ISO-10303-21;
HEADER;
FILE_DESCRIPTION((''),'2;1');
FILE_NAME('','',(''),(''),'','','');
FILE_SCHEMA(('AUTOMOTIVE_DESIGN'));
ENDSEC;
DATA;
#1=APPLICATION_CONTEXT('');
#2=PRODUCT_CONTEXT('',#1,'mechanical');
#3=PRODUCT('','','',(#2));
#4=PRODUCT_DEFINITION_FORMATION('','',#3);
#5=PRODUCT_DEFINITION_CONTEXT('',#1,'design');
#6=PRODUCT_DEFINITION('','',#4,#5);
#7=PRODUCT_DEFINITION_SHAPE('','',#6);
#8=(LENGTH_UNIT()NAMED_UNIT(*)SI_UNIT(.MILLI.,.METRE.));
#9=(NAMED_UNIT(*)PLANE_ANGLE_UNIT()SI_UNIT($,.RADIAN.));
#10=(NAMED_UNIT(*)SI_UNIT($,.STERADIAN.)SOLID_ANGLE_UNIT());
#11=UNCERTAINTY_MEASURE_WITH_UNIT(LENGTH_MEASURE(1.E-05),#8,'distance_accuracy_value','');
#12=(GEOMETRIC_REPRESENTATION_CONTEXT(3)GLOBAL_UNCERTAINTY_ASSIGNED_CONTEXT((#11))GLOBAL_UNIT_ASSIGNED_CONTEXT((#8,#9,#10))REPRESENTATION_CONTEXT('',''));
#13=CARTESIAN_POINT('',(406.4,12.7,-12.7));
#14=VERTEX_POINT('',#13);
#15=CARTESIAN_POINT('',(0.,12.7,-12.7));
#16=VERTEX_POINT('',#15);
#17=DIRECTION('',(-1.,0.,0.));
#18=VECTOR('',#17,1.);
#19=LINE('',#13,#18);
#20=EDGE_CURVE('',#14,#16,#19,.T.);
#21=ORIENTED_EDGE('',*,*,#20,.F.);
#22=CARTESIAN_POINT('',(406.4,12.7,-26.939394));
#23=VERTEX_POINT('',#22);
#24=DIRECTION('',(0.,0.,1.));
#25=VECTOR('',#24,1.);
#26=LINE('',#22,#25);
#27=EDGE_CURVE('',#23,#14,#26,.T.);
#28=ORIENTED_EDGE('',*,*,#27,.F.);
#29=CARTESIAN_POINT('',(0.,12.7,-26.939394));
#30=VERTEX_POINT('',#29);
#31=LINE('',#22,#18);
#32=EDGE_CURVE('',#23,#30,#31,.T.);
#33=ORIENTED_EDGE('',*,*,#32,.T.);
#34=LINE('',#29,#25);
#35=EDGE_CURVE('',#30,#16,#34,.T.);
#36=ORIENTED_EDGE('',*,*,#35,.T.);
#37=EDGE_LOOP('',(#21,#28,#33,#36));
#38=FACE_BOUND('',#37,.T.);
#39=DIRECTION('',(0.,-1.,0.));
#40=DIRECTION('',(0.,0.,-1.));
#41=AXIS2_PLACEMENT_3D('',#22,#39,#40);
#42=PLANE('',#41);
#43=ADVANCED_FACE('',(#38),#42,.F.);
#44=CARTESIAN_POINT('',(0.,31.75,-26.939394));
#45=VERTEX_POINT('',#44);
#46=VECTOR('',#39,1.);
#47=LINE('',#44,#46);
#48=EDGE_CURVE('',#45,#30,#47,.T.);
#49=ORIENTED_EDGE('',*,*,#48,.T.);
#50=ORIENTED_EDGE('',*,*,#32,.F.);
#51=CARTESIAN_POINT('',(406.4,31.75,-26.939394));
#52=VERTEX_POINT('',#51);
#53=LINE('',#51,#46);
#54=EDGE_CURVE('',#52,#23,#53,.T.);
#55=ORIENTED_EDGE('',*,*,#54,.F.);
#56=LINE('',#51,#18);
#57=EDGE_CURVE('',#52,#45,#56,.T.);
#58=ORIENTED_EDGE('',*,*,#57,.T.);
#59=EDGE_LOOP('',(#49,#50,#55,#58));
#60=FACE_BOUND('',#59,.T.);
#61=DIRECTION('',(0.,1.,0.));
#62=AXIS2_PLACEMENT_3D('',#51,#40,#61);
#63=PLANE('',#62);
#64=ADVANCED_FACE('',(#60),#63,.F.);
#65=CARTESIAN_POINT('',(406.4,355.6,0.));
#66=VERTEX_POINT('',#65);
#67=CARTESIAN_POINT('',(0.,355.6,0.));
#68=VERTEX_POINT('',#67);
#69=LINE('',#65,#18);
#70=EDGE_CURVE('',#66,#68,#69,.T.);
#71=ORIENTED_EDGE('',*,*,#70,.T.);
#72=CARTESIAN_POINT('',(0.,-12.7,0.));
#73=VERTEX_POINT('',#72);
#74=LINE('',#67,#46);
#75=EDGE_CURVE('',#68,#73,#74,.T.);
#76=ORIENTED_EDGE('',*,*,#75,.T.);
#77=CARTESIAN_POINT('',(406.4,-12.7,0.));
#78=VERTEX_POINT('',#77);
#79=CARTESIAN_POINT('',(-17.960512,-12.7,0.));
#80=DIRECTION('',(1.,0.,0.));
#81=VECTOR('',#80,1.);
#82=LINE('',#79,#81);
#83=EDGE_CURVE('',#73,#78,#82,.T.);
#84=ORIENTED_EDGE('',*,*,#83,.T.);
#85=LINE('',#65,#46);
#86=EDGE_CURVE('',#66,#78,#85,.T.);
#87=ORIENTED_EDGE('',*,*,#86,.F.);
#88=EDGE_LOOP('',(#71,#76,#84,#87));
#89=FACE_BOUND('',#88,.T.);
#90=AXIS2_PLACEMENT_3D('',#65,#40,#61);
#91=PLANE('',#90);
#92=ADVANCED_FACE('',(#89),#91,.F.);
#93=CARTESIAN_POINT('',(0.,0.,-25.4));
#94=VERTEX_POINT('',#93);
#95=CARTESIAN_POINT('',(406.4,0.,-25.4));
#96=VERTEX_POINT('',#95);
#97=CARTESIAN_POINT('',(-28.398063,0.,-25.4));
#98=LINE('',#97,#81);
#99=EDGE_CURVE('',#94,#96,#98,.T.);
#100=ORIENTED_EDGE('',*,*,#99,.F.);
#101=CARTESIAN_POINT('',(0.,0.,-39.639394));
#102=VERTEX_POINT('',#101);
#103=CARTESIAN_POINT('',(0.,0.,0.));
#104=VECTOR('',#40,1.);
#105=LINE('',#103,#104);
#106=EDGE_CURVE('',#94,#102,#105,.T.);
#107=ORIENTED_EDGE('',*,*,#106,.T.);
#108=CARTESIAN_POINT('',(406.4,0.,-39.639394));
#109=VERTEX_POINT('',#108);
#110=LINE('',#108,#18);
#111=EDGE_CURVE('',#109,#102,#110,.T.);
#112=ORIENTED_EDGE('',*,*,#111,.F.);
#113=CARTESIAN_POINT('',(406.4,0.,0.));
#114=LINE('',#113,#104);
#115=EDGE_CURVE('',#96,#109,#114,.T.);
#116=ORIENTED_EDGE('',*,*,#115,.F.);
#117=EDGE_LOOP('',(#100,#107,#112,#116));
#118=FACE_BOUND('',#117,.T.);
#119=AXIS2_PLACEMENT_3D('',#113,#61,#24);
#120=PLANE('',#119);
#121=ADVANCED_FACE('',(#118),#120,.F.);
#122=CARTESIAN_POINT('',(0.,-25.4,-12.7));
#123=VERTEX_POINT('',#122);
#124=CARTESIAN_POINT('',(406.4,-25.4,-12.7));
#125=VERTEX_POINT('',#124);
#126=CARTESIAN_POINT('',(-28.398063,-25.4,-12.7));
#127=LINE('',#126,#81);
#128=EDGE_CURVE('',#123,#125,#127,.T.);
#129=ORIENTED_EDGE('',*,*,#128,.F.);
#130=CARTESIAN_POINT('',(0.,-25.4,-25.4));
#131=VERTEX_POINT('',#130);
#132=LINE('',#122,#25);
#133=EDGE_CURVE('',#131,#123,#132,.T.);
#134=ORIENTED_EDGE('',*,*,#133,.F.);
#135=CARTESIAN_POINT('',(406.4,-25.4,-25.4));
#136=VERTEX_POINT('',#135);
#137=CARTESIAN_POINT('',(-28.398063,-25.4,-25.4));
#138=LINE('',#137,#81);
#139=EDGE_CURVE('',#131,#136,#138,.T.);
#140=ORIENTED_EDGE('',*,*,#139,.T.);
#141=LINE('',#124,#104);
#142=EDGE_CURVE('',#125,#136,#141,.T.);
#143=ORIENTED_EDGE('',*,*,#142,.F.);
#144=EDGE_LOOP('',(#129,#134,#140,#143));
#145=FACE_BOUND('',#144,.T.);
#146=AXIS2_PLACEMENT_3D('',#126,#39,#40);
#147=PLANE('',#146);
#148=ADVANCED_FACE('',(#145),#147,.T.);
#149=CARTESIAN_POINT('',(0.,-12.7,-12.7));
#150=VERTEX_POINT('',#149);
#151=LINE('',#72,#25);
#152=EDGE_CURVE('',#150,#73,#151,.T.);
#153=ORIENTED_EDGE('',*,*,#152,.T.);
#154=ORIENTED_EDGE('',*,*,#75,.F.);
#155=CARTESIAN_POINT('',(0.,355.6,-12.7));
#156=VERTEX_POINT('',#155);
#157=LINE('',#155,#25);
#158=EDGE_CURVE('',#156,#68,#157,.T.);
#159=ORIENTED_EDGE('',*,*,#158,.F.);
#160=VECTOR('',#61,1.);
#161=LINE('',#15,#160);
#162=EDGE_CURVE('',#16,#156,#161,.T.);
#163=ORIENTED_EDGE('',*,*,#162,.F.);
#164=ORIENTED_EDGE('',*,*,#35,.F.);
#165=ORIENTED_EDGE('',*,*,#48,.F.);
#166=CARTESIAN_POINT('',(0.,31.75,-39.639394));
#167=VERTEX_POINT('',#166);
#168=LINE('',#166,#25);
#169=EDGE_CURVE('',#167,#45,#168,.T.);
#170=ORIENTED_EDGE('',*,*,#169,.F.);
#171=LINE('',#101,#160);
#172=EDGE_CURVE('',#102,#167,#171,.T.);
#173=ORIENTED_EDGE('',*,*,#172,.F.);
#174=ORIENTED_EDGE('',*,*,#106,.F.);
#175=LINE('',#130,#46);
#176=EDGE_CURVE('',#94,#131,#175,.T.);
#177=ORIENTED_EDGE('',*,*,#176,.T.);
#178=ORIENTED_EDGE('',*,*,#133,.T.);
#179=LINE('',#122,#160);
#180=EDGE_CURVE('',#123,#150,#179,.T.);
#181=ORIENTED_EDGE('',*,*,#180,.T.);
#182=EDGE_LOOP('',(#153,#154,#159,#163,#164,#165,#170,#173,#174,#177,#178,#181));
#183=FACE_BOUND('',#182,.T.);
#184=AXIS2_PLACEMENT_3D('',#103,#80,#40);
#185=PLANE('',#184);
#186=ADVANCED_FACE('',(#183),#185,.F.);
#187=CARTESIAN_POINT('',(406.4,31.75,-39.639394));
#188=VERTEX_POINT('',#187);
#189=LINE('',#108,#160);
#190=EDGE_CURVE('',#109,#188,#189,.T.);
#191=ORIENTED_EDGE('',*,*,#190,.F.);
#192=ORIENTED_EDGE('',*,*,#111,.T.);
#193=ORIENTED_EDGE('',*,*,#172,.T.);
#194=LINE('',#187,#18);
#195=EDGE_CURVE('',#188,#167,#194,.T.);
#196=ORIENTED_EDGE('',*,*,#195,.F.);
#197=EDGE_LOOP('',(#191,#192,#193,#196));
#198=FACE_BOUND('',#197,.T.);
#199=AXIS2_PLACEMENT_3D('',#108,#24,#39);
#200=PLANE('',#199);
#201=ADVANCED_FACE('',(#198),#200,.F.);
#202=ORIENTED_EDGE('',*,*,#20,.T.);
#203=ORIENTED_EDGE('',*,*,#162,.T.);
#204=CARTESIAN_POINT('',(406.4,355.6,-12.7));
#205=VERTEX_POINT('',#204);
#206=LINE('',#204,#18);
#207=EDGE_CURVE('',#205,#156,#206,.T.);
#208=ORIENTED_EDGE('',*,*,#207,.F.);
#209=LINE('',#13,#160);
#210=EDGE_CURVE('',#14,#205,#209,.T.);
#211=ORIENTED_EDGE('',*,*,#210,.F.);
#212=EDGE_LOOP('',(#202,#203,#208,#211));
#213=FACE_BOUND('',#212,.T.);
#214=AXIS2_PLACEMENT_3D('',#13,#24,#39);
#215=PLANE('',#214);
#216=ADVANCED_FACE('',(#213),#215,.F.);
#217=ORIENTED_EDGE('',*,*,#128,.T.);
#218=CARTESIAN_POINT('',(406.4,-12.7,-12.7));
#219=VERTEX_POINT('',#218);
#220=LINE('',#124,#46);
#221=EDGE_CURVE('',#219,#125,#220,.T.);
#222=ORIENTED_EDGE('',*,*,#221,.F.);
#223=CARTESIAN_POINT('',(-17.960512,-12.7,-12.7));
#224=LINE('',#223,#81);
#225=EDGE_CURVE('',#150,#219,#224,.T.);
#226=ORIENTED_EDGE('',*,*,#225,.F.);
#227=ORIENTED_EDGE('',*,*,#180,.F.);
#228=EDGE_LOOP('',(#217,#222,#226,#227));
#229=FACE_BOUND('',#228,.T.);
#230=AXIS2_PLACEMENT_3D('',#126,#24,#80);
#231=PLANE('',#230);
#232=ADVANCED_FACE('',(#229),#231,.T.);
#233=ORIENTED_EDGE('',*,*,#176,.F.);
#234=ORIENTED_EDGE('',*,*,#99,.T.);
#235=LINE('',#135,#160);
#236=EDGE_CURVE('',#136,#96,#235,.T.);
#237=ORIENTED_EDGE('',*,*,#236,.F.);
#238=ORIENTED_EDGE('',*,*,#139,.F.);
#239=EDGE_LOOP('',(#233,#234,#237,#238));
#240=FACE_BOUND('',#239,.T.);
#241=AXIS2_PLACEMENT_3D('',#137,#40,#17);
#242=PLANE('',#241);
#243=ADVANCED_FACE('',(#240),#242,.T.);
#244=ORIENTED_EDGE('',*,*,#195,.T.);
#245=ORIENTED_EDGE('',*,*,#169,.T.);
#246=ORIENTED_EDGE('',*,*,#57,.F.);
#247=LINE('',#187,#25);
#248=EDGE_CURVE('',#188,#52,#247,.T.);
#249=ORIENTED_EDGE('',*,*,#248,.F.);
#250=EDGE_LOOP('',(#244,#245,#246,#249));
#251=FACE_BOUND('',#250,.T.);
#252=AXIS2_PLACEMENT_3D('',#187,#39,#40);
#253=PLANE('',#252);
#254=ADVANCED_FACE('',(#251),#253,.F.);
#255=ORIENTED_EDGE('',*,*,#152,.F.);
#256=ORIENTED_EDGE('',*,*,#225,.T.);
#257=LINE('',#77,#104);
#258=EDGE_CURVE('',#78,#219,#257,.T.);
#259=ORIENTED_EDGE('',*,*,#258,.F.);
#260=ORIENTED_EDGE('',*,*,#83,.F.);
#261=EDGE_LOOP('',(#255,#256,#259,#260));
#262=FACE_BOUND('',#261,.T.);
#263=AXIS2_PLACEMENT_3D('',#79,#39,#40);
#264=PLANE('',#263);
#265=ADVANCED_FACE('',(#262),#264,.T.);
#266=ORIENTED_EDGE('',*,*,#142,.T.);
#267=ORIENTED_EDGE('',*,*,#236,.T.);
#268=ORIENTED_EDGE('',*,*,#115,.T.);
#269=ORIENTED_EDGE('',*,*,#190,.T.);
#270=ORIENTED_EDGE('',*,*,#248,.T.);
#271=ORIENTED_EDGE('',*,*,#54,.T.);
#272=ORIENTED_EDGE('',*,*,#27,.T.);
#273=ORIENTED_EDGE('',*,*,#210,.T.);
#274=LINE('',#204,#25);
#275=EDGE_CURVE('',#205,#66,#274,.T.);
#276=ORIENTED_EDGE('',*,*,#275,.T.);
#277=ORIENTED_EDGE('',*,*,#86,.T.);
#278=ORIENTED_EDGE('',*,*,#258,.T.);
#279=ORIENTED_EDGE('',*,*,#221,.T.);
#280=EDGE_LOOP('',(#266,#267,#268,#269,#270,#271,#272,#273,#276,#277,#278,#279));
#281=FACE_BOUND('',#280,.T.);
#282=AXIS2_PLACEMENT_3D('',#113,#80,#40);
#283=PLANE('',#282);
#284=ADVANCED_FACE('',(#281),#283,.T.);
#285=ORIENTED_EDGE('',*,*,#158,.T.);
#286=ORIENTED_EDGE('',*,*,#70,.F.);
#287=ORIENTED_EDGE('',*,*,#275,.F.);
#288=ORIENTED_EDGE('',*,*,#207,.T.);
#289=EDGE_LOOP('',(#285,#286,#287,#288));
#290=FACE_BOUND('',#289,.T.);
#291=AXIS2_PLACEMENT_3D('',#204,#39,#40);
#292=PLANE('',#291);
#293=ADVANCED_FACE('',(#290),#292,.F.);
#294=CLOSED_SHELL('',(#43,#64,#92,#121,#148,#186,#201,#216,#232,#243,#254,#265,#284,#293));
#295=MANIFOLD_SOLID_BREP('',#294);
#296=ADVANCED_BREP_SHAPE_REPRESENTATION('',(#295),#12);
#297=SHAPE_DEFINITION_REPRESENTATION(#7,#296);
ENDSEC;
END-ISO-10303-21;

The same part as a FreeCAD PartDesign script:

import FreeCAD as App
import Part
import Sketcher
Q = App.Units.Quantity

doc = App.newDocument("Part")
body = doc.addObject("PartDesign::Body", "Body")

# Sketch on YZ plane
sketch1 = doc.addObject("Sketcher::SketchObject", "Sketch")
body.addObject(sketch1)
sketch1.AttachmentSupport = (doc.YZ_Plane, [""])
sketch1.MapMode = "FlatFace"
sketch1.addGeometry([
    Part.LineSegment(App.Vector(0, 0, 0), App.Vector(0, -39.639394, 0)),  # 0
    Part.LineSegment(App.Vector(0, -39.639394, 0), App.Vector(31.75, -39.639394, 0)),  # 1
    Part.LineSegment(App.Vector(31.75, -39.639394, 0), App.Vector(31.75, -26.939394, 0)),  # 2
    Part.LineSegment(App.Vector(31.75, -26.939394, 0), App.Vector(12.7, -26.939394, 0)),  # 3
    Part.LineSegment(App.Vector(12.7, -26.939394, 0), App.Vector(12.7, -12.7, 0)),  # 4
    Part.LineSegment(App.Vector(12.7, -12.7, 0), App.Vector(355.6, -12.7, 0)),  # 5
    Part.LineSegment(App.Vector(355.6, -12.7, 0), App.Vector(355.6, 0, 0)),  # 6
    Part.LineSegment(App.Vector(355.6, 0, 0), App.Vector(0, 0, 0)),  # 7
], False)
sketch1.addConstraint([
    Sketcher.Constraint("Coincident", 0, 2, 1, 1),
    Sketcher.Constraint("Coincident", 1, 2, 2, 1),
    Sketcher.Constraint("Coincident", 2, 2, 3, 1),
    Sketcher.Constraint("Coincident", 3, 2, 4, 1),
    Sketcher.Constraint("Coincident", 4, 2, 5, 1),
    Sketcher.Constraint("Coincident", 5, 2, 6, 1),
    Sketcher.Constraint("Coincident", 6, 2, 7, 1),
    Sketcher.Constraint("Coincident", 7, 2, 0, 1),
    Sketcher.Constraint("Vertical", 0),
    Sketcher.Constraint("Horizontal", 1),
    Sketcher.Constraint("Vertical", 2),
    Sketcher.Constraint("Horizontal", 3),
    Sketcher.Constraint("Vertical", 4),
    Sketcher.Constraint("Horizontal", 5),
    Sketcher.Constraint("Vertical", 6),
    Sketcher.Constraint("Horizontal", 7),
    Sketcher.Constraint("Coincident", 7, 2, -1, 1),
    Sketcher.Constraint("Equal", 2, 6),
    Sketcher.Constraint("DistanceX", 7, 2, 7, 1, Q("14 in")),
    Sketcher.Constraint("DistanceX", 5, 1, 5, 2, Q("13.5 in")),
    Sketcher.Constraint("DistanceY", 2, 1, 2, 2, Q("0.5 in")),
    Sketcher.Constraint("DistanceX", 1, 1, 1, 2, Q("1.25 in")),
    Sketcher.Constraint("DistanceY", 0, 2, 0, 1, 39.639394),
])
pad1 = doc.addObject("PartDesign::Pad", "Pad")
body.addObject(pad1)
pad1.Profile = sketch1
pad1.Length = Q("16 in")

# Sketch on YZ plane
sketch2 = doc.addObject("Sketcher::SketchObject", "Sketch001")
body.addObject(sketch2)
sketch2.AttachmentSupport = (doc.YZ_Plane, [""])
sketch2.MapMode = "FlatFace"
sketch2.AttachmentOffset = App.Placement(App.Vector(0, 0, 16 * 25.4), App.Rotation())
sketch2.addGeometry([
    Part.LineSegment(App.Vector(0, 0, 0), App.Vector(-12.7, 0, 0)),
    Part.LineSegment(App.Vector(-12.7, 0, 0), App.Vector(-12.7, -12.7, 0)),
    Part.LineSegment(App.Vector(-12.7, -12.7, 0), App.Vector(0, -12.7, 0)),
    Part.LineSegment(App.Vector(0, -12.7, 0), App.Vector(0, 0, 0)),
], False)
sketch2.addConstraint([
    Sketcher.Constraint("Coincident", 0, 2, 1, 1),
    Sketcher.Constraint("Coincident", 1, 2, 2, 1),
    Sketcher.Constraint("Coincident", 2, 2, 3, 1),
    Sketcher.Constraint("Coincident", 3, 2, 0, 1),
    Sketcher.Constraint("Horizontal", 0),
    Sketcher.Constraint("Vertical", 1),
    Sketcher.Constraint("Horizontal", 2),
    Sketcher.Constraint("Vertical", 3),
    Sketcher.Constraint("Coincident", 3, 2, -1, 1),
    Sketcher.Constraint("Equal", 2, 1),
    Sketcher.Constraint("DistanceX", 0, 2, 0, 1, Q("0.5 in")),
])
pad2 = doc.addObject("PartDesign::Pad", "Pad001")
body.addObject(pad2)
pad2.Profile = sketch2
pad2.Length = Q("16 in")
pad2.Reversed = True

# Sketch on YZ plane
sketch3 = doc.addObject("Sketcher::SketchObject", "Sketch002")
body.addObject(sketch3)
sketch3.AttachmentSupport = (doc.YZ_Plane, [""])
sketch3.MapMode = "FlatFace"
sketch3.AttachmentOffset = App.Placement(App.Vector(0, 0, 16 * 25.4), App.Rotation())
sketch3.addGeometry([
    Part.LineSegment(App.Vector(0, -12.7, 0), App.Vector(-25.4, -12.7, 0)),
    Part.LineSegment(App.Vector(-25.4, -12.7, 0), App.Vector(-25.4, -25.4, 0)),
    Part.LineSegment(App.Vector(-25.4, -25.4, 0), App.Vector(0, -25.4, 0)),
    Part.LineSegment(App.Vector(0, -25.4, 0), App.Vector(0, -12.7, 0)),
], False)
sketch3.addConstraint([
    Sketcher.Constraint("Coincident", 0, 2, 1, 1),
    Sketcher.Constraint("Coincident", 1, 2, 2, 1),
    Sketcher.Constraint("Coincident", 2, 2, 3, 1),
    Sketcher.Constraint("Coincident", 3, 2, 0, 1),
    Sketcher.Constraint("Horizontal", 0),
    Sketcher.Constraint("Vertical", 1),
    Sketcher.Constraint("Horizontal", 2),
    Sketcher.Constraint("Vertical", 3),
    Sketcher.Constraint("PointOnObject", 2, 2, -2),
    Sketcher.Constraint("DistanceX", 0, 2, 0, 1, Q("1 in")),
    Sketcher.Constraint("DistanceY", 1, 2, 1, 1, Q("0.5 in")),
    Sketcher.Constraint("DistanceY", 1, 2, -1, 1, Q("1 in")),
])
pad3 = doc.addObject("PartDesign::Pad", "Pad002")
body.addObject(pad3)
pad3.Profile = sketch3
pad3.Length = Q("16 in")
pad3.Reversed = True

doc.recompute()
